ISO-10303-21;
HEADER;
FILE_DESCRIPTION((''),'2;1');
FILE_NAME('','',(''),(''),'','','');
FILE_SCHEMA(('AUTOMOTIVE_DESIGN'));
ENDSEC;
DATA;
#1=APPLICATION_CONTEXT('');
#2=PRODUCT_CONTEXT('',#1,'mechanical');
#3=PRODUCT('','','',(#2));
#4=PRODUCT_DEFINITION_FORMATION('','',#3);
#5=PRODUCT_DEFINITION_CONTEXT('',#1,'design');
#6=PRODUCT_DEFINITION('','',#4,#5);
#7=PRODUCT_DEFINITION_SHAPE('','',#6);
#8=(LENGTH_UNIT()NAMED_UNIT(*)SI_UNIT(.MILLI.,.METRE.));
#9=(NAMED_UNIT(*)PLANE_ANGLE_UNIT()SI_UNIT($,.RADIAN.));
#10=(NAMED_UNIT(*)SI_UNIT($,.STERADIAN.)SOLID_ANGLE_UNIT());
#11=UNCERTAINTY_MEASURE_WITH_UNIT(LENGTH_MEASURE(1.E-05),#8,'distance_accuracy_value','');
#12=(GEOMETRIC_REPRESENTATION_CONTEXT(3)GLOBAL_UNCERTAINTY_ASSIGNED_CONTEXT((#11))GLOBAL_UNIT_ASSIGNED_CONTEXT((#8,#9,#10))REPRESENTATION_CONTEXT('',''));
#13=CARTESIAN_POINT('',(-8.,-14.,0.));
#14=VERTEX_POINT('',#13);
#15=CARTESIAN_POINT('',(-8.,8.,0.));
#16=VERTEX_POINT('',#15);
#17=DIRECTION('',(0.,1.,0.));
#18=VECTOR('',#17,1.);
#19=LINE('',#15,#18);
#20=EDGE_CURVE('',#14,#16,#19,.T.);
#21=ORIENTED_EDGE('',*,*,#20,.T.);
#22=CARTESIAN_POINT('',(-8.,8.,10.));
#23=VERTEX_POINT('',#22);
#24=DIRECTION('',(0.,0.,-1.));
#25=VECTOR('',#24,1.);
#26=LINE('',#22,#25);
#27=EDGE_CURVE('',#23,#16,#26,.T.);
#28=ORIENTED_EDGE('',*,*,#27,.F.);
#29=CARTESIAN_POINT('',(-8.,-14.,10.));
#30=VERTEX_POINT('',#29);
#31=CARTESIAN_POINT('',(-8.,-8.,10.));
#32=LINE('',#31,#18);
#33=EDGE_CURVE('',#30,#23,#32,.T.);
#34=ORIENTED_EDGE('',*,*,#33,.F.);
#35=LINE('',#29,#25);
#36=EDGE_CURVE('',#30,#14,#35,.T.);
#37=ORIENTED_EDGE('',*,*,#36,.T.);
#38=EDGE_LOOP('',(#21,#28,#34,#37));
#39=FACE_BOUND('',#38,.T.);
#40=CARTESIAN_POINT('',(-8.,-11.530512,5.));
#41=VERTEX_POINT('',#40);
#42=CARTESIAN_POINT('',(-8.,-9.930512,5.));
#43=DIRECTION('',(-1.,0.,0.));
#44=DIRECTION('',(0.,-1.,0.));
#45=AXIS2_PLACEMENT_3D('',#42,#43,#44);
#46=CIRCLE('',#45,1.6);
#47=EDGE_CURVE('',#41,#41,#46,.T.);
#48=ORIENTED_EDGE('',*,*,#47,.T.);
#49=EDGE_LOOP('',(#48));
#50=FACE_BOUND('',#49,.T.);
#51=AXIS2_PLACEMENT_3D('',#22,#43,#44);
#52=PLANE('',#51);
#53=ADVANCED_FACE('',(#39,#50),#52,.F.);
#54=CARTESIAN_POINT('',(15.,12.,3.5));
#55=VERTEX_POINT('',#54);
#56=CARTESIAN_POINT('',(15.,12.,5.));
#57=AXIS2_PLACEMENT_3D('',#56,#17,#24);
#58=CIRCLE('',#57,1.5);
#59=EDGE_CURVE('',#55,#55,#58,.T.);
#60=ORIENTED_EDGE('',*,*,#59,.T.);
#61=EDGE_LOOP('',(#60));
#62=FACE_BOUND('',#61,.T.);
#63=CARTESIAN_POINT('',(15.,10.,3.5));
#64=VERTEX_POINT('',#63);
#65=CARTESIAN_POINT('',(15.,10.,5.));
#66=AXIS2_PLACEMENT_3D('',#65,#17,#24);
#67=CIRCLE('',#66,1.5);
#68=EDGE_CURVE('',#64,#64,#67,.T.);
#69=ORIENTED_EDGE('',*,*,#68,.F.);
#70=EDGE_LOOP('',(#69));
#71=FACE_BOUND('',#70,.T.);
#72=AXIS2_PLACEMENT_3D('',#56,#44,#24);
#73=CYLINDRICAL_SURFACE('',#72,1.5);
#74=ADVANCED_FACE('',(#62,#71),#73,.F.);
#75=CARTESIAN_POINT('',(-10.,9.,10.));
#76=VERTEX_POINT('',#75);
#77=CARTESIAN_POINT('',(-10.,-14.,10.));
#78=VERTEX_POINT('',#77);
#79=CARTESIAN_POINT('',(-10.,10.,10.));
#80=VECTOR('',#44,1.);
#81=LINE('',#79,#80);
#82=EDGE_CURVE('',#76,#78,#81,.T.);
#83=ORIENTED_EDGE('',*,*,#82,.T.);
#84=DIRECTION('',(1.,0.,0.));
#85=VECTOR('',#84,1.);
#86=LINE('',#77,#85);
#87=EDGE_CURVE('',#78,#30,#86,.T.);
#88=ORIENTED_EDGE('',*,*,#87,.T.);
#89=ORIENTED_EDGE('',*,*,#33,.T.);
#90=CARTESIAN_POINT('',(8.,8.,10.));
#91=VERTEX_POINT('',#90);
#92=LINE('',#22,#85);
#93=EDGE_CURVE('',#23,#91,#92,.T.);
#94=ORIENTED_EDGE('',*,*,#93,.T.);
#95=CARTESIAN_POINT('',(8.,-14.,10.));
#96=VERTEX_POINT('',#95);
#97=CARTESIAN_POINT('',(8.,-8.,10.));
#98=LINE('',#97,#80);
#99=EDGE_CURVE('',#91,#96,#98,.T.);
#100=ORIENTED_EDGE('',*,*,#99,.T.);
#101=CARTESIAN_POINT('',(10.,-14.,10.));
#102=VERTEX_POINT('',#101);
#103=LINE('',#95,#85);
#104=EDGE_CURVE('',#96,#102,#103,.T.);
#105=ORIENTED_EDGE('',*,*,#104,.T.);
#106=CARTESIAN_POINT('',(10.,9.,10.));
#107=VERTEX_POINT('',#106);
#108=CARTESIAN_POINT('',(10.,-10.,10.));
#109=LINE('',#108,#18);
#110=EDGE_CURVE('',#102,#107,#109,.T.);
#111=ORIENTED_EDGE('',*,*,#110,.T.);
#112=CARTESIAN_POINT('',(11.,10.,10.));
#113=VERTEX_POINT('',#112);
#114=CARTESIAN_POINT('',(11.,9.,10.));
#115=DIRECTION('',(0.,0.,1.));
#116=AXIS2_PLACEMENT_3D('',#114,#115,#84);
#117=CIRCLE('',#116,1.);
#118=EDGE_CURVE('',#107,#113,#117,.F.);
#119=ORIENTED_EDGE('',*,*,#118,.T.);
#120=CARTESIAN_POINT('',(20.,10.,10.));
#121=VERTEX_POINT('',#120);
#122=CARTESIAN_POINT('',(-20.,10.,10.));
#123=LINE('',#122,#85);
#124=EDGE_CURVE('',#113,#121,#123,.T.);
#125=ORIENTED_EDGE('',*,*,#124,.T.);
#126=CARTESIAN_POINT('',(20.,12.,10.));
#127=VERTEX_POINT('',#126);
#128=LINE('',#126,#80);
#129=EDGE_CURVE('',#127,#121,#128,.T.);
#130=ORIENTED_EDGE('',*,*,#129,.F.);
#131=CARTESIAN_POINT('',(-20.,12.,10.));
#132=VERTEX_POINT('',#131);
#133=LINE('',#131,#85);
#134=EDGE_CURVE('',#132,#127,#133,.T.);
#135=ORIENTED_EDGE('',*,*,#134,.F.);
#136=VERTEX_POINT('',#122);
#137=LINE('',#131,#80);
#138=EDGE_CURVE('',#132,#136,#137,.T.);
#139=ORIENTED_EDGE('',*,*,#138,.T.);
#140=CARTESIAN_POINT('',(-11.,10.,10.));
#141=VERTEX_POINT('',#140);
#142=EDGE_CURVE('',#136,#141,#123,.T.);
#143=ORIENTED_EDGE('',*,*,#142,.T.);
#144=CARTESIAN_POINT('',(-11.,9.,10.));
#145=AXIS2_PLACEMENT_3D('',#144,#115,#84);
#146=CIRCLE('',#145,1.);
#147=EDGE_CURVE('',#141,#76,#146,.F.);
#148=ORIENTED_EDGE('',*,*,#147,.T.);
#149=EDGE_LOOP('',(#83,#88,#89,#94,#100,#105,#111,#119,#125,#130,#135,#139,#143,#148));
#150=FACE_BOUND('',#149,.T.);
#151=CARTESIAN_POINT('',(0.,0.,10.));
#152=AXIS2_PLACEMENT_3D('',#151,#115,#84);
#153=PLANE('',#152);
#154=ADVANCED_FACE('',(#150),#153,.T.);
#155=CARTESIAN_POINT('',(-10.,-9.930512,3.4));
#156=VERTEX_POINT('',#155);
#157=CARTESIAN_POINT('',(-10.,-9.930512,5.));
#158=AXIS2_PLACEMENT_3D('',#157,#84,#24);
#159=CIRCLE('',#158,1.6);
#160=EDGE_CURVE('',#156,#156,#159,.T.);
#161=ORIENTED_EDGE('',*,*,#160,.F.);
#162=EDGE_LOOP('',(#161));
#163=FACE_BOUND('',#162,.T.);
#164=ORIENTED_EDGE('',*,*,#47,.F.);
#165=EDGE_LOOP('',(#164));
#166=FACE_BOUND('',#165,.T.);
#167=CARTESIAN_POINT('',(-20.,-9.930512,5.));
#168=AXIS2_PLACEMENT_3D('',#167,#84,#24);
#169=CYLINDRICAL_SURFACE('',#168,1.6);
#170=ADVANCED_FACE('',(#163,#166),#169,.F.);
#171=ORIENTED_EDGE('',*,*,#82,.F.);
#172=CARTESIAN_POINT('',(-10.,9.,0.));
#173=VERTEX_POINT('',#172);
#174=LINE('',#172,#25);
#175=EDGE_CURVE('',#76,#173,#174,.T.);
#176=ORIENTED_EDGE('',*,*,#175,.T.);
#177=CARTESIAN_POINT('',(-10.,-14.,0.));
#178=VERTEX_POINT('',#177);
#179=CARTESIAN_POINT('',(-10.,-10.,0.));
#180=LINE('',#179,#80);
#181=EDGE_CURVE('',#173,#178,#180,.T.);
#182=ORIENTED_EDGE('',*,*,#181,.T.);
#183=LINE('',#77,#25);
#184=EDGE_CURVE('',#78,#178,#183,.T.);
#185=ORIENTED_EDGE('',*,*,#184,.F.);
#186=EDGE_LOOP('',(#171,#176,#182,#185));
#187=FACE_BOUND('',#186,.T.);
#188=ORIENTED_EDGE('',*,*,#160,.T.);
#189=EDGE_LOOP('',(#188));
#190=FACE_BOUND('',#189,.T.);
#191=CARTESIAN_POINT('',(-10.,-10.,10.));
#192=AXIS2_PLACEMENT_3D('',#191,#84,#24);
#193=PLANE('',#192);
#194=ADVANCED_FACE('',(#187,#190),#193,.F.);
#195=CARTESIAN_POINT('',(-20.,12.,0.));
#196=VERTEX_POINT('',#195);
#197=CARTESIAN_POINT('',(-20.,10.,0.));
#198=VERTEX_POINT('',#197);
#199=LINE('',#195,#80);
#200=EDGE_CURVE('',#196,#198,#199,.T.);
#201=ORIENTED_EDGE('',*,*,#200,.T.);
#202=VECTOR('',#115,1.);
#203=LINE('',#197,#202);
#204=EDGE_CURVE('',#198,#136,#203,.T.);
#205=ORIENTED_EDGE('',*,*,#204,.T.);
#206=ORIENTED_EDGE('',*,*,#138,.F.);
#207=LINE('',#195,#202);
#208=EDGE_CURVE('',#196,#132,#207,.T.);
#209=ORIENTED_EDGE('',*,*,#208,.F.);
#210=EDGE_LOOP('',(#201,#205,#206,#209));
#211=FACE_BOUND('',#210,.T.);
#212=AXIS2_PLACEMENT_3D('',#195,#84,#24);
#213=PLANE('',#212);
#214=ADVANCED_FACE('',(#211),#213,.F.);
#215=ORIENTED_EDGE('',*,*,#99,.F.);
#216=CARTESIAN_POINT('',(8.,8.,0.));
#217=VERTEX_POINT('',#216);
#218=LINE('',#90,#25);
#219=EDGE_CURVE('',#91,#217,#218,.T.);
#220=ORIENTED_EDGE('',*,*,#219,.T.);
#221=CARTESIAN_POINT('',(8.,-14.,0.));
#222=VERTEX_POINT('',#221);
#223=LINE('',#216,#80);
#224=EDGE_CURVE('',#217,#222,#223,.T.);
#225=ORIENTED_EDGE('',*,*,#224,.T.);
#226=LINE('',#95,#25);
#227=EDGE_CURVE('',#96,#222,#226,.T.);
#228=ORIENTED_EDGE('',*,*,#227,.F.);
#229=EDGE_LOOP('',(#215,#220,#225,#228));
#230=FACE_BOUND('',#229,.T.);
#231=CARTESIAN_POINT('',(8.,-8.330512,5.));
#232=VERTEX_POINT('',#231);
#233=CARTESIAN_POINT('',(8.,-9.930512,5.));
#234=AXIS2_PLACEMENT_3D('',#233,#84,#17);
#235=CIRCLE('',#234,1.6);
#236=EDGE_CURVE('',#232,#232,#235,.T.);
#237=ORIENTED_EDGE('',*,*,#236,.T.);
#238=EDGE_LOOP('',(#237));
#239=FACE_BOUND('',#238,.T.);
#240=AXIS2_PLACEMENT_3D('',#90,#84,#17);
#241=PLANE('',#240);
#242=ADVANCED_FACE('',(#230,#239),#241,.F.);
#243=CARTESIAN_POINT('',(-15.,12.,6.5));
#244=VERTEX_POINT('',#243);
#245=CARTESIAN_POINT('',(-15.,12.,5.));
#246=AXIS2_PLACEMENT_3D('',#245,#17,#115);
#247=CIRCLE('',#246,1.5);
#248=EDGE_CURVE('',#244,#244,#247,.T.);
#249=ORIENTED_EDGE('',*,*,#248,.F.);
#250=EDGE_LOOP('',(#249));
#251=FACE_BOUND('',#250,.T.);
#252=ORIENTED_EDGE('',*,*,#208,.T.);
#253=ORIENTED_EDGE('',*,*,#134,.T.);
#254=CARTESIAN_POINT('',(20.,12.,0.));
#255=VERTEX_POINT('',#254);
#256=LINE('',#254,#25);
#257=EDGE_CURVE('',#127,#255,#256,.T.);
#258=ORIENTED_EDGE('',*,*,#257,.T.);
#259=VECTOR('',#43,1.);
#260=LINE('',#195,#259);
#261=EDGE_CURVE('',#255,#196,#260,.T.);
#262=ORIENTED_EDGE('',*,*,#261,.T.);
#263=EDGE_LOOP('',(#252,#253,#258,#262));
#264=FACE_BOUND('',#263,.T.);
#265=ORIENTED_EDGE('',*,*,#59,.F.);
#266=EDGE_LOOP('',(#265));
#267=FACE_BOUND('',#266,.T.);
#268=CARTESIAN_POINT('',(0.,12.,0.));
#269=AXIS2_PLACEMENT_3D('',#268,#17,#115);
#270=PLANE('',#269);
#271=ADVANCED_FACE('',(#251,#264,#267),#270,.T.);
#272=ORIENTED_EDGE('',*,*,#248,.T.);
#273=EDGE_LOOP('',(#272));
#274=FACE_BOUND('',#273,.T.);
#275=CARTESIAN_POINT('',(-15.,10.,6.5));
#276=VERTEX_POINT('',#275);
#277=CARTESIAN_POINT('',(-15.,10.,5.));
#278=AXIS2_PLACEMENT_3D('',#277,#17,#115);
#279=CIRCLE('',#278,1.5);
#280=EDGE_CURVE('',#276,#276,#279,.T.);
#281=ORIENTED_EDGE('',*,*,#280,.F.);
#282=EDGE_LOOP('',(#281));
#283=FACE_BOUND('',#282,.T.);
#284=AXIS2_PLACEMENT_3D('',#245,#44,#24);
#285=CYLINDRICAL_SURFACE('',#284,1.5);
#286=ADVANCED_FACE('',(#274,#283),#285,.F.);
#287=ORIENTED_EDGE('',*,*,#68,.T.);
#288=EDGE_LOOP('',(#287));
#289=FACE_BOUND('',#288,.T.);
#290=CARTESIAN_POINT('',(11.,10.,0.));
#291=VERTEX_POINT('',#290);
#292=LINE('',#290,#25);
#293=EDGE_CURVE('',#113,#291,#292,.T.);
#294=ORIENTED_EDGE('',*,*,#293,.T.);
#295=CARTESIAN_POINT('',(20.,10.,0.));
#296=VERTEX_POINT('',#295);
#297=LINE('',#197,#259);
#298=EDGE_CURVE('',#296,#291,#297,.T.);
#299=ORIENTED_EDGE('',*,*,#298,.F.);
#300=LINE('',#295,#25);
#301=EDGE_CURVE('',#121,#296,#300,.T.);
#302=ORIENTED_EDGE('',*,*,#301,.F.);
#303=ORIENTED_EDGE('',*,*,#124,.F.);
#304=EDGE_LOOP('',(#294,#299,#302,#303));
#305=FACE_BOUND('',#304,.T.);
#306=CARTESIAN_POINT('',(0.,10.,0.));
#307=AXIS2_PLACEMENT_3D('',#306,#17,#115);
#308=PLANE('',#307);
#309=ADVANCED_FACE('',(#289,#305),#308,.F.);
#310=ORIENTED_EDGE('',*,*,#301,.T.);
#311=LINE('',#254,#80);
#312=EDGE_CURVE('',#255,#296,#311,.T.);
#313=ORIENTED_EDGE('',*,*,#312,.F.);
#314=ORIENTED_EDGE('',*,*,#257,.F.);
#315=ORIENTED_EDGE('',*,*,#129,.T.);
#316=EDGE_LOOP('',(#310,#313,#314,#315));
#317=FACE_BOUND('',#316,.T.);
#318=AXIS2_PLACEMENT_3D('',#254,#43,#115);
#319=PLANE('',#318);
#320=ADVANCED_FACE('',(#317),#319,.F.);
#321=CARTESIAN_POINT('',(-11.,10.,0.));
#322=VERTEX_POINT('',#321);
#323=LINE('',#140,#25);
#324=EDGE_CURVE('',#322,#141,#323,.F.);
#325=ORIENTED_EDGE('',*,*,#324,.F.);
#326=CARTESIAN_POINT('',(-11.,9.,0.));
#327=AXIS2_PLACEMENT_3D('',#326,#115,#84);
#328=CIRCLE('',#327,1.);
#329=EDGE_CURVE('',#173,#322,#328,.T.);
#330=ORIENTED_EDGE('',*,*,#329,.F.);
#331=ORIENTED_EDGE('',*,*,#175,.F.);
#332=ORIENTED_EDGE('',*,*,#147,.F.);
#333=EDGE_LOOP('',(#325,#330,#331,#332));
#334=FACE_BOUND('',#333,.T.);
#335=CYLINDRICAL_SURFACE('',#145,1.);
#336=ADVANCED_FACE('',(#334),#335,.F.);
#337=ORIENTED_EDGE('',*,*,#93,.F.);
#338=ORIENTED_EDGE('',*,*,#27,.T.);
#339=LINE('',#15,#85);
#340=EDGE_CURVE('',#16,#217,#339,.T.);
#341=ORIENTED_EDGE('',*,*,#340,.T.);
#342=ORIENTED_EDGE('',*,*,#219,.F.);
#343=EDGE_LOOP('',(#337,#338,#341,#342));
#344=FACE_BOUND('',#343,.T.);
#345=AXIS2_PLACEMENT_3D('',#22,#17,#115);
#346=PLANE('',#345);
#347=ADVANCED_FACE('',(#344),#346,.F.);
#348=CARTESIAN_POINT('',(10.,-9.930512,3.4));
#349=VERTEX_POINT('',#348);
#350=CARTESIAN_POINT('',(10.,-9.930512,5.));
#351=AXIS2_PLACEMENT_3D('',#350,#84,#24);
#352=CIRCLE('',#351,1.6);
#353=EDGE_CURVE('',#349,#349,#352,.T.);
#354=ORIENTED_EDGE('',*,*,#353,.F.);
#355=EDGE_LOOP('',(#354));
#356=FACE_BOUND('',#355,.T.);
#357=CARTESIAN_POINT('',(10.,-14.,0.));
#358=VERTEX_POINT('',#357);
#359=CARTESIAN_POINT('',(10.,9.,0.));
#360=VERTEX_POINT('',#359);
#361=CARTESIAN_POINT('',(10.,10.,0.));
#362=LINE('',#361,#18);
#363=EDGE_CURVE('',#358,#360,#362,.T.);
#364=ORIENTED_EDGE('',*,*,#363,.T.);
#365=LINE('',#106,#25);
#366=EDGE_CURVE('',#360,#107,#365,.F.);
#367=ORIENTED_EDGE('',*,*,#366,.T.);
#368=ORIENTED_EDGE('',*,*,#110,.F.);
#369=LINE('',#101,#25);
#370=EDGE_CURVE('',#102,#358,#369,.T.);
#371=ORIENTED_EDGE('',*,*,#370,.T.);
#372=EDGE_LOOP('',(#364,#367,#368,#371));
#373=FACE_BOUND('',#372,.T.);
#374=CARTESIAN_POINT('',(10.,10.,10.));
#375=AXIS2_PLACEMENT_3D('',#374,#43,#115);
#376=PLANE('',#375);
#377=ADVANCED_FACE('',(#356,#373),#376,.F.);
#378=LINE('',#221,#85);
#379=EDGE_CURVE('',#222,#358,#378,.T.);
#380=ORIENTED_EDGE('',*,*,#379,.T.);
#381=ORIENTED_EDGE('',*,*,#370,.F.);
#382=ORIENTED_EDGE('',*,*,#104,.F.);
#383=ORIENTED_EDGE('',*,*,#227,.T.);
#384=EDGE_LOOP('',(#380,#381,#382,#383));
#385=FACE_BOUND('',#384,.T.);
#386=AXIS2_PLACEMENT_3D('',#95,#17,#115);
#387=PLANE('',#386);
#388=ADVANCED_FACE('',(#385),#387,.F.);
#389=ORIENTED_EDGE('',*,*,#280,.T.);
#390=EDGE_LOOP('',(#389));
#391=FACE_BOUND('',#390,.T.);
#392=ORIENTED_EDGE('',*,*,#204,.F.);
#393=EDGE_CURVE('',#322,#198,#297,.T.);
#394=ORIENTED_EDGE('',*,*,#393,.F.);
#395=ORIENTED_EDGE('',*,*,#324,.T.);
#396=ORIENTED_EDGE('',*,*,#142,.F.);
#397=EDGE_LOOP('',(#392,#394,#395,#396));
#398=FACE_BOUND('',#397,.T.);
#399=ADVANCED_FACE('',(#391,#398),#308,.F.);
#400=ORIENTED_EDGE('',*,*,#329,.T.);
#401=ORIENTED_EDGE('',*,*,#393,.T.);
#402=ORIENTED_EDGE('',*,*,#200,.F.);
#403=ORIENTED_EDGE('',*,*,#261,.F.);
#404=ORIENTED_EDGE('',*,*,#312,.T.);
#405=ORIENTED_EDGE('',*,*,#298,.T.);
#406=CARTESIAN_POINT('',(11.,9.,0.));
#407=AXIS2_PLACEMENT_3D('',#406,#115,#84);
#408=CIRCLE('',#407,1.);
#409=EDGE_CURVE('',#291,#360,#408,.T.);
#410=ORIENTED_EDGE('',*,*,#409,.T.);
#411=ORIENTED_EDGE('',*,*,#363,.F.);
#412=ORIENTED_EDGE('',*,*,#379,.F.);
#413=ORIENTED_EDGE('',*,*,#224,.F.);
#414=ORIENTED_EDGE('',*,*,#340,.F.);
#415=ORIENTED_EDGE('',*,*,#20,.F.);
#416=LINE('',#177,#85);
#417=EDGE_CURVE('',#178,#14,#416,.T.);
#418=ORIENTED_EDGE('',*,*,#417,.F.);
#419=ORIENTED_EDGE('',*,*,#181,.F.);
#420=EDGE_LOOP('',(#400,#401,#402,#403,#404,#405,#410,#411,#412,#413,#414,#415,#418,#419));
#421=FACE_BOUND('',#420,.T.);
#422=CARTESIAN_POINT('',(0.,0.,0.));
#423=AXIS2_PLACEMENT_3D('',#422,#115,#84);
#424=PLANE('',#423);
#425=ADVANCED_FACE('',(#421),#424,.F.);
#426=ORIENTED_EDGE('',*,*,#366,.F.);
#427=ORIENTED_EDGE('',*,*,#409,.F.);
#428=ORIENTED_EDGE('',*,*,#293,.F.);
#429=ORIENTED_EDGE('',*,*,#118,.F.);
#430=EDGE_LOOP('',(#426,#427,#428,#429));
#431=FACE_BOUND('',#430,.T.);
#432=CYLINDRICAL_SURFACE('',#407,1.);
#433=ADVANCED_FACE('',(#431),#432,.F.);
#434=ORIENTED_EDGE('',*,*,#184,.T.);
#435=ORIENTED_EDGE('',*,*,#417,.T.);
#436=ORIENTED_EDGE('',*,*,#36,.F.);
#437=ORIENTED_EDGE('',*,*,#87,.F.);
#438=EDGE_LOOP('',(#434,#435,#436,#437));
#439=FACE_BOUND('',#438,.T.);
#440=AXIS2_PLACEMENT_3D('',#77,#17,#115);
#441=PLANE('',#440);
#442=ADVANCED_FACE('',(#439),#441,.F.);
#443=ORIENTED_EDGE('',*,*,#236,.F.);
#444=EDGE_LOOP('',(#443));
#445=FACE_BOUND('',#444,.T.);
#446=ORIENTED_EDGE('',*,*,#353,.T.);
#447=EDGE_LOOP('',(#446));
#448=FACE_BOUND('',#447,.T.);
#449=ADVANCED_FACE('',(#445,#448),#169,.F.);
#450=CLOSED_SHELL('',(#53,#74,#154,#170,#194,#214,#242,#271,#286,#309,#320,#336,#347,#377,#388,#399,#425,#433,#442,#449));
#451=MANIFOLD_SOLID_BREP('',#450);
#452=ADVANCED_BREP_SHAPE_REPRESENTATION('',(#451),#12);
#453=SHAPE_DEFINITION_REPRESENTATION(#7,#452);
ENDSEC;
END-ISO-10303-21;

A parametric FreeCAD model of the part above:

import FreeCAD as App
import Part
import Sketcher
from FreeCAD import Vector
Q = App.Units.Quantity


def edges_at(feature, points):
    """Names of the edges that pass closest to the given points."""
    edges = feature.Shape.Edges
    near = lambda p: min(range(len(edges)), key=lambda i: edges[i].distToShape(Part.Vertex(*p))[0])
    return sorted({f"Edge{near(p) + 1}" for p in points})

doc = App.newDocument("Part")
body = doc.addObject("PartDesign::Body", "Body")

# Sketch on XY plane
sketch1 = body.newObject("Sketcher::SketchObject", "Sketch")
sketch1.AttachmentSupport = (doc.getObject("XY_Plane"), [""])
sketch1.MapMode = "FlatFace"
sketch1.addGeometry([
    Part.LineSegment(Vector(-10, 10, 0), Vector(-10, -14, 0)),  # 0
    Part.LineSegment(Vector(-10, -14, 0), Vector(-8, -14, 0)),  # 1
    Part.LineSegment(Vector(-8, -14, 0), Vector(-8, 8, 0)),  # 2
    Part.LineSegment(Vector(-8, 8, 0), Vector(8, 8, 0)),  # 3
    Part.LineSegment(Vector(8, 8, 0), Vector(8, -14, 0)),  # 4
    Part.LineSegment(Vector(8, -14, 0), Vector(10, -14, 0)),  # 5
    Part.LineSegment(Vector(10, -14, 0), Vector(10, 10, 0)),  # 6
    Part.LineSegment(Vector(10, 10, 0), Vector(-10, 10, 0)),  # 7
], False)
sketch1.addConstraint([
    Sketcher.Constraint("Coincident", 0, 2, 1, 1),
    Sketcher.Constraint("Coincident", 1, 2, 2, 1),
    Sketcher.Constraint("Coincident", 2, 2, 3, 1),
    Sketcher.Constraint("Coincident", 3, 2, 4, 1),
    Sketcher.Constraint("Coincident", 4, 2, 5, 1),
    Sketcher.Constraint("Coincident", 5, 2, 6, 1),
    Sketcher.Constraint("Coincident", 6, 2, 7, 1),
    Sketcher.Constraint("Coincident", 7, 2, 0, 1),
    Sketcher.Constraint("Vertical", 0),
    Sketcher.Constraint("Horizontal", 1),
    Sketcher.Constraint("Vertical", 2),
    Sketcher.Constraint("Horizontal", 3),
    Sketcher.Constraint("Vertical", 4),
    Sketcher.Constraint("Horizontal", 5),
    Sketcher.Constraint("Vertical", 6),
    Sketcher.Constraint("Horizontal", 7),
    Sketcher.Constraint("Symmetric", 1, 2, 4, 2, -2),
    Sketcher.Constraint("Equal", 1, 5),
    Sketcher.Constraint("DistanceX", 1, 1, 1, 2, Q("2 mm")),
    Sketcher.Constraint("DistanceX", 3, 1, 3, 2, Q("16 mm")),
    Sketcher.Constraint("DistanceY", 0, 2, 0, 1, Q("24 mm")),
    Sketcher.Constraint("DistanceY", 2, 1, 2, 2, Q("22 mm")),
    Sketcher.Constraint("DistanceY", 0, 2, -1, 1, Q("14 mm")),
])
pad1 = body.newObject("PartDesign::Pad", "Pad")
pad1.Profile = sketch1
pad1.Length = 10

# Sketch on XZ plane
sketch2 = body.newObject("Sketcher::SketchObject", "Sketch001")
sketch2.AttachmentSupport = (doc.getObject("XZ_Plane"), [""])
sketch2.MapMode = "FlatFace"
sketch2.AttachmentOffset = App.Placement(Vector(0, 0, -10), App.Rotation())
sketch2.addGeometry([
    Part.LineSegment(Vector(-20, 0, 0), Vector(-20, 10, 0)),  # 0
    Part.LineSegment(Vector(-20, 10, 0), Vector(20, 10, 0)),  # 1
    Part.LineSegment(Vector(20, 10, 0), Vector(20, 0, 0)),  # 2
    Part.LineSegment(Vector(20, 0, 0), Vector(-20, 0, 0)),  # 3
    Part.Circle(Vector(-15, 5, 0), Vector(0, 0, 1), 1.5),  # 4
    Part.Circle(Vector(15, 5, 0), Vector(0, 0, 1), 1.5),  # 5
], False)
sketch2.addConstraint([
    Sketcher.Constraint("Coincident", 0, 2, 1, 1),
    Sketcher.Constraint("Coincident", 1, 2, 2, 1),
    Sketcher.Constraint("Coincident", 2, 2, 3, 1),
    Sketcher.Constraint("Coincident", 3, 2, 0, 1),
    Sketcher.Constraint("Vertical", 0),
    Sketcher.Constraint("Horizontal", 1),
    Sketcher.Constraint("Vertical", 2),
    Sketcher.Constraint("Horizontal", 3),
    Sketcher.Constraint("Equal", 4, 5),
    Sketcher.Constraint("Symmetric", 2, 2, 3, 2, -1, 1),
    Sketcher.Constraint("Symmetric", 4, 3, 5, 3, -2),
    Sketcher.Constraint("Diameter", 4, Q("3 mm")),
    Sketcher.Constraint("DistanceX", 1, 1, 1, 2, Q("40 mm")),
    Sketcher.Constraint("DistanceY", 0, 1, 0, 2, Q("10 mm")),
    Sketcher.Constraint("DistanceX", 4, 3, -1, 1, Q("15 mm")),
    Sketcher.Constraint("DistanceY", -1, 1, 4, 3, Q("5 mm")),
])
pad2 = body.newObject("PartDesign::Pad", "Pad001")
pad2.Profile = sketch2
pad2.Length = 2
pad2.Reversed = True
doc.recompute()

fillet = body.newObject("PartDesign::Fillet", "Fillet")
fillet.Base = (pad2, edges_at(pad2, [(-10, 10, 5), (10, 10, 5)]))
fillet.Radius = 1

# Sketch on YZ plane
sketch3 = body.newObject("Sketcher::SketchObject", "Sketch002")
sketch3.AttachmentSupport = (doc.getObject("YZ_Plane"), [""])
sketch3.MapMode = "FlatFace"
sketch3.AttachmentOffset = App.Placement(Vector(0, 0, 10), App.Rotation())
sketch3.addGeometry(Part.Circle(Vector(-9.930512, 5, 0), Vector(0, 0, 1), 1.6), False)
sketch3.addConstraint([
    Sketcher.Constraint("Diameter", 0, Q("3.2 mm")),
    Sketcher.Constraint("DistanceY", -1, 1, 0, 3, Q("5 mm")),
    Sketcher.Constraint("DistanceX", 0, 3, -1, 1, Q("9.930512 mm")),
])
pocket1 = body.newObject("PartDesign::Pocket", "Pocket")
pocket1.Profile = sketch3
pocket1.Type = "ThroughAll"

doc.recompute()
